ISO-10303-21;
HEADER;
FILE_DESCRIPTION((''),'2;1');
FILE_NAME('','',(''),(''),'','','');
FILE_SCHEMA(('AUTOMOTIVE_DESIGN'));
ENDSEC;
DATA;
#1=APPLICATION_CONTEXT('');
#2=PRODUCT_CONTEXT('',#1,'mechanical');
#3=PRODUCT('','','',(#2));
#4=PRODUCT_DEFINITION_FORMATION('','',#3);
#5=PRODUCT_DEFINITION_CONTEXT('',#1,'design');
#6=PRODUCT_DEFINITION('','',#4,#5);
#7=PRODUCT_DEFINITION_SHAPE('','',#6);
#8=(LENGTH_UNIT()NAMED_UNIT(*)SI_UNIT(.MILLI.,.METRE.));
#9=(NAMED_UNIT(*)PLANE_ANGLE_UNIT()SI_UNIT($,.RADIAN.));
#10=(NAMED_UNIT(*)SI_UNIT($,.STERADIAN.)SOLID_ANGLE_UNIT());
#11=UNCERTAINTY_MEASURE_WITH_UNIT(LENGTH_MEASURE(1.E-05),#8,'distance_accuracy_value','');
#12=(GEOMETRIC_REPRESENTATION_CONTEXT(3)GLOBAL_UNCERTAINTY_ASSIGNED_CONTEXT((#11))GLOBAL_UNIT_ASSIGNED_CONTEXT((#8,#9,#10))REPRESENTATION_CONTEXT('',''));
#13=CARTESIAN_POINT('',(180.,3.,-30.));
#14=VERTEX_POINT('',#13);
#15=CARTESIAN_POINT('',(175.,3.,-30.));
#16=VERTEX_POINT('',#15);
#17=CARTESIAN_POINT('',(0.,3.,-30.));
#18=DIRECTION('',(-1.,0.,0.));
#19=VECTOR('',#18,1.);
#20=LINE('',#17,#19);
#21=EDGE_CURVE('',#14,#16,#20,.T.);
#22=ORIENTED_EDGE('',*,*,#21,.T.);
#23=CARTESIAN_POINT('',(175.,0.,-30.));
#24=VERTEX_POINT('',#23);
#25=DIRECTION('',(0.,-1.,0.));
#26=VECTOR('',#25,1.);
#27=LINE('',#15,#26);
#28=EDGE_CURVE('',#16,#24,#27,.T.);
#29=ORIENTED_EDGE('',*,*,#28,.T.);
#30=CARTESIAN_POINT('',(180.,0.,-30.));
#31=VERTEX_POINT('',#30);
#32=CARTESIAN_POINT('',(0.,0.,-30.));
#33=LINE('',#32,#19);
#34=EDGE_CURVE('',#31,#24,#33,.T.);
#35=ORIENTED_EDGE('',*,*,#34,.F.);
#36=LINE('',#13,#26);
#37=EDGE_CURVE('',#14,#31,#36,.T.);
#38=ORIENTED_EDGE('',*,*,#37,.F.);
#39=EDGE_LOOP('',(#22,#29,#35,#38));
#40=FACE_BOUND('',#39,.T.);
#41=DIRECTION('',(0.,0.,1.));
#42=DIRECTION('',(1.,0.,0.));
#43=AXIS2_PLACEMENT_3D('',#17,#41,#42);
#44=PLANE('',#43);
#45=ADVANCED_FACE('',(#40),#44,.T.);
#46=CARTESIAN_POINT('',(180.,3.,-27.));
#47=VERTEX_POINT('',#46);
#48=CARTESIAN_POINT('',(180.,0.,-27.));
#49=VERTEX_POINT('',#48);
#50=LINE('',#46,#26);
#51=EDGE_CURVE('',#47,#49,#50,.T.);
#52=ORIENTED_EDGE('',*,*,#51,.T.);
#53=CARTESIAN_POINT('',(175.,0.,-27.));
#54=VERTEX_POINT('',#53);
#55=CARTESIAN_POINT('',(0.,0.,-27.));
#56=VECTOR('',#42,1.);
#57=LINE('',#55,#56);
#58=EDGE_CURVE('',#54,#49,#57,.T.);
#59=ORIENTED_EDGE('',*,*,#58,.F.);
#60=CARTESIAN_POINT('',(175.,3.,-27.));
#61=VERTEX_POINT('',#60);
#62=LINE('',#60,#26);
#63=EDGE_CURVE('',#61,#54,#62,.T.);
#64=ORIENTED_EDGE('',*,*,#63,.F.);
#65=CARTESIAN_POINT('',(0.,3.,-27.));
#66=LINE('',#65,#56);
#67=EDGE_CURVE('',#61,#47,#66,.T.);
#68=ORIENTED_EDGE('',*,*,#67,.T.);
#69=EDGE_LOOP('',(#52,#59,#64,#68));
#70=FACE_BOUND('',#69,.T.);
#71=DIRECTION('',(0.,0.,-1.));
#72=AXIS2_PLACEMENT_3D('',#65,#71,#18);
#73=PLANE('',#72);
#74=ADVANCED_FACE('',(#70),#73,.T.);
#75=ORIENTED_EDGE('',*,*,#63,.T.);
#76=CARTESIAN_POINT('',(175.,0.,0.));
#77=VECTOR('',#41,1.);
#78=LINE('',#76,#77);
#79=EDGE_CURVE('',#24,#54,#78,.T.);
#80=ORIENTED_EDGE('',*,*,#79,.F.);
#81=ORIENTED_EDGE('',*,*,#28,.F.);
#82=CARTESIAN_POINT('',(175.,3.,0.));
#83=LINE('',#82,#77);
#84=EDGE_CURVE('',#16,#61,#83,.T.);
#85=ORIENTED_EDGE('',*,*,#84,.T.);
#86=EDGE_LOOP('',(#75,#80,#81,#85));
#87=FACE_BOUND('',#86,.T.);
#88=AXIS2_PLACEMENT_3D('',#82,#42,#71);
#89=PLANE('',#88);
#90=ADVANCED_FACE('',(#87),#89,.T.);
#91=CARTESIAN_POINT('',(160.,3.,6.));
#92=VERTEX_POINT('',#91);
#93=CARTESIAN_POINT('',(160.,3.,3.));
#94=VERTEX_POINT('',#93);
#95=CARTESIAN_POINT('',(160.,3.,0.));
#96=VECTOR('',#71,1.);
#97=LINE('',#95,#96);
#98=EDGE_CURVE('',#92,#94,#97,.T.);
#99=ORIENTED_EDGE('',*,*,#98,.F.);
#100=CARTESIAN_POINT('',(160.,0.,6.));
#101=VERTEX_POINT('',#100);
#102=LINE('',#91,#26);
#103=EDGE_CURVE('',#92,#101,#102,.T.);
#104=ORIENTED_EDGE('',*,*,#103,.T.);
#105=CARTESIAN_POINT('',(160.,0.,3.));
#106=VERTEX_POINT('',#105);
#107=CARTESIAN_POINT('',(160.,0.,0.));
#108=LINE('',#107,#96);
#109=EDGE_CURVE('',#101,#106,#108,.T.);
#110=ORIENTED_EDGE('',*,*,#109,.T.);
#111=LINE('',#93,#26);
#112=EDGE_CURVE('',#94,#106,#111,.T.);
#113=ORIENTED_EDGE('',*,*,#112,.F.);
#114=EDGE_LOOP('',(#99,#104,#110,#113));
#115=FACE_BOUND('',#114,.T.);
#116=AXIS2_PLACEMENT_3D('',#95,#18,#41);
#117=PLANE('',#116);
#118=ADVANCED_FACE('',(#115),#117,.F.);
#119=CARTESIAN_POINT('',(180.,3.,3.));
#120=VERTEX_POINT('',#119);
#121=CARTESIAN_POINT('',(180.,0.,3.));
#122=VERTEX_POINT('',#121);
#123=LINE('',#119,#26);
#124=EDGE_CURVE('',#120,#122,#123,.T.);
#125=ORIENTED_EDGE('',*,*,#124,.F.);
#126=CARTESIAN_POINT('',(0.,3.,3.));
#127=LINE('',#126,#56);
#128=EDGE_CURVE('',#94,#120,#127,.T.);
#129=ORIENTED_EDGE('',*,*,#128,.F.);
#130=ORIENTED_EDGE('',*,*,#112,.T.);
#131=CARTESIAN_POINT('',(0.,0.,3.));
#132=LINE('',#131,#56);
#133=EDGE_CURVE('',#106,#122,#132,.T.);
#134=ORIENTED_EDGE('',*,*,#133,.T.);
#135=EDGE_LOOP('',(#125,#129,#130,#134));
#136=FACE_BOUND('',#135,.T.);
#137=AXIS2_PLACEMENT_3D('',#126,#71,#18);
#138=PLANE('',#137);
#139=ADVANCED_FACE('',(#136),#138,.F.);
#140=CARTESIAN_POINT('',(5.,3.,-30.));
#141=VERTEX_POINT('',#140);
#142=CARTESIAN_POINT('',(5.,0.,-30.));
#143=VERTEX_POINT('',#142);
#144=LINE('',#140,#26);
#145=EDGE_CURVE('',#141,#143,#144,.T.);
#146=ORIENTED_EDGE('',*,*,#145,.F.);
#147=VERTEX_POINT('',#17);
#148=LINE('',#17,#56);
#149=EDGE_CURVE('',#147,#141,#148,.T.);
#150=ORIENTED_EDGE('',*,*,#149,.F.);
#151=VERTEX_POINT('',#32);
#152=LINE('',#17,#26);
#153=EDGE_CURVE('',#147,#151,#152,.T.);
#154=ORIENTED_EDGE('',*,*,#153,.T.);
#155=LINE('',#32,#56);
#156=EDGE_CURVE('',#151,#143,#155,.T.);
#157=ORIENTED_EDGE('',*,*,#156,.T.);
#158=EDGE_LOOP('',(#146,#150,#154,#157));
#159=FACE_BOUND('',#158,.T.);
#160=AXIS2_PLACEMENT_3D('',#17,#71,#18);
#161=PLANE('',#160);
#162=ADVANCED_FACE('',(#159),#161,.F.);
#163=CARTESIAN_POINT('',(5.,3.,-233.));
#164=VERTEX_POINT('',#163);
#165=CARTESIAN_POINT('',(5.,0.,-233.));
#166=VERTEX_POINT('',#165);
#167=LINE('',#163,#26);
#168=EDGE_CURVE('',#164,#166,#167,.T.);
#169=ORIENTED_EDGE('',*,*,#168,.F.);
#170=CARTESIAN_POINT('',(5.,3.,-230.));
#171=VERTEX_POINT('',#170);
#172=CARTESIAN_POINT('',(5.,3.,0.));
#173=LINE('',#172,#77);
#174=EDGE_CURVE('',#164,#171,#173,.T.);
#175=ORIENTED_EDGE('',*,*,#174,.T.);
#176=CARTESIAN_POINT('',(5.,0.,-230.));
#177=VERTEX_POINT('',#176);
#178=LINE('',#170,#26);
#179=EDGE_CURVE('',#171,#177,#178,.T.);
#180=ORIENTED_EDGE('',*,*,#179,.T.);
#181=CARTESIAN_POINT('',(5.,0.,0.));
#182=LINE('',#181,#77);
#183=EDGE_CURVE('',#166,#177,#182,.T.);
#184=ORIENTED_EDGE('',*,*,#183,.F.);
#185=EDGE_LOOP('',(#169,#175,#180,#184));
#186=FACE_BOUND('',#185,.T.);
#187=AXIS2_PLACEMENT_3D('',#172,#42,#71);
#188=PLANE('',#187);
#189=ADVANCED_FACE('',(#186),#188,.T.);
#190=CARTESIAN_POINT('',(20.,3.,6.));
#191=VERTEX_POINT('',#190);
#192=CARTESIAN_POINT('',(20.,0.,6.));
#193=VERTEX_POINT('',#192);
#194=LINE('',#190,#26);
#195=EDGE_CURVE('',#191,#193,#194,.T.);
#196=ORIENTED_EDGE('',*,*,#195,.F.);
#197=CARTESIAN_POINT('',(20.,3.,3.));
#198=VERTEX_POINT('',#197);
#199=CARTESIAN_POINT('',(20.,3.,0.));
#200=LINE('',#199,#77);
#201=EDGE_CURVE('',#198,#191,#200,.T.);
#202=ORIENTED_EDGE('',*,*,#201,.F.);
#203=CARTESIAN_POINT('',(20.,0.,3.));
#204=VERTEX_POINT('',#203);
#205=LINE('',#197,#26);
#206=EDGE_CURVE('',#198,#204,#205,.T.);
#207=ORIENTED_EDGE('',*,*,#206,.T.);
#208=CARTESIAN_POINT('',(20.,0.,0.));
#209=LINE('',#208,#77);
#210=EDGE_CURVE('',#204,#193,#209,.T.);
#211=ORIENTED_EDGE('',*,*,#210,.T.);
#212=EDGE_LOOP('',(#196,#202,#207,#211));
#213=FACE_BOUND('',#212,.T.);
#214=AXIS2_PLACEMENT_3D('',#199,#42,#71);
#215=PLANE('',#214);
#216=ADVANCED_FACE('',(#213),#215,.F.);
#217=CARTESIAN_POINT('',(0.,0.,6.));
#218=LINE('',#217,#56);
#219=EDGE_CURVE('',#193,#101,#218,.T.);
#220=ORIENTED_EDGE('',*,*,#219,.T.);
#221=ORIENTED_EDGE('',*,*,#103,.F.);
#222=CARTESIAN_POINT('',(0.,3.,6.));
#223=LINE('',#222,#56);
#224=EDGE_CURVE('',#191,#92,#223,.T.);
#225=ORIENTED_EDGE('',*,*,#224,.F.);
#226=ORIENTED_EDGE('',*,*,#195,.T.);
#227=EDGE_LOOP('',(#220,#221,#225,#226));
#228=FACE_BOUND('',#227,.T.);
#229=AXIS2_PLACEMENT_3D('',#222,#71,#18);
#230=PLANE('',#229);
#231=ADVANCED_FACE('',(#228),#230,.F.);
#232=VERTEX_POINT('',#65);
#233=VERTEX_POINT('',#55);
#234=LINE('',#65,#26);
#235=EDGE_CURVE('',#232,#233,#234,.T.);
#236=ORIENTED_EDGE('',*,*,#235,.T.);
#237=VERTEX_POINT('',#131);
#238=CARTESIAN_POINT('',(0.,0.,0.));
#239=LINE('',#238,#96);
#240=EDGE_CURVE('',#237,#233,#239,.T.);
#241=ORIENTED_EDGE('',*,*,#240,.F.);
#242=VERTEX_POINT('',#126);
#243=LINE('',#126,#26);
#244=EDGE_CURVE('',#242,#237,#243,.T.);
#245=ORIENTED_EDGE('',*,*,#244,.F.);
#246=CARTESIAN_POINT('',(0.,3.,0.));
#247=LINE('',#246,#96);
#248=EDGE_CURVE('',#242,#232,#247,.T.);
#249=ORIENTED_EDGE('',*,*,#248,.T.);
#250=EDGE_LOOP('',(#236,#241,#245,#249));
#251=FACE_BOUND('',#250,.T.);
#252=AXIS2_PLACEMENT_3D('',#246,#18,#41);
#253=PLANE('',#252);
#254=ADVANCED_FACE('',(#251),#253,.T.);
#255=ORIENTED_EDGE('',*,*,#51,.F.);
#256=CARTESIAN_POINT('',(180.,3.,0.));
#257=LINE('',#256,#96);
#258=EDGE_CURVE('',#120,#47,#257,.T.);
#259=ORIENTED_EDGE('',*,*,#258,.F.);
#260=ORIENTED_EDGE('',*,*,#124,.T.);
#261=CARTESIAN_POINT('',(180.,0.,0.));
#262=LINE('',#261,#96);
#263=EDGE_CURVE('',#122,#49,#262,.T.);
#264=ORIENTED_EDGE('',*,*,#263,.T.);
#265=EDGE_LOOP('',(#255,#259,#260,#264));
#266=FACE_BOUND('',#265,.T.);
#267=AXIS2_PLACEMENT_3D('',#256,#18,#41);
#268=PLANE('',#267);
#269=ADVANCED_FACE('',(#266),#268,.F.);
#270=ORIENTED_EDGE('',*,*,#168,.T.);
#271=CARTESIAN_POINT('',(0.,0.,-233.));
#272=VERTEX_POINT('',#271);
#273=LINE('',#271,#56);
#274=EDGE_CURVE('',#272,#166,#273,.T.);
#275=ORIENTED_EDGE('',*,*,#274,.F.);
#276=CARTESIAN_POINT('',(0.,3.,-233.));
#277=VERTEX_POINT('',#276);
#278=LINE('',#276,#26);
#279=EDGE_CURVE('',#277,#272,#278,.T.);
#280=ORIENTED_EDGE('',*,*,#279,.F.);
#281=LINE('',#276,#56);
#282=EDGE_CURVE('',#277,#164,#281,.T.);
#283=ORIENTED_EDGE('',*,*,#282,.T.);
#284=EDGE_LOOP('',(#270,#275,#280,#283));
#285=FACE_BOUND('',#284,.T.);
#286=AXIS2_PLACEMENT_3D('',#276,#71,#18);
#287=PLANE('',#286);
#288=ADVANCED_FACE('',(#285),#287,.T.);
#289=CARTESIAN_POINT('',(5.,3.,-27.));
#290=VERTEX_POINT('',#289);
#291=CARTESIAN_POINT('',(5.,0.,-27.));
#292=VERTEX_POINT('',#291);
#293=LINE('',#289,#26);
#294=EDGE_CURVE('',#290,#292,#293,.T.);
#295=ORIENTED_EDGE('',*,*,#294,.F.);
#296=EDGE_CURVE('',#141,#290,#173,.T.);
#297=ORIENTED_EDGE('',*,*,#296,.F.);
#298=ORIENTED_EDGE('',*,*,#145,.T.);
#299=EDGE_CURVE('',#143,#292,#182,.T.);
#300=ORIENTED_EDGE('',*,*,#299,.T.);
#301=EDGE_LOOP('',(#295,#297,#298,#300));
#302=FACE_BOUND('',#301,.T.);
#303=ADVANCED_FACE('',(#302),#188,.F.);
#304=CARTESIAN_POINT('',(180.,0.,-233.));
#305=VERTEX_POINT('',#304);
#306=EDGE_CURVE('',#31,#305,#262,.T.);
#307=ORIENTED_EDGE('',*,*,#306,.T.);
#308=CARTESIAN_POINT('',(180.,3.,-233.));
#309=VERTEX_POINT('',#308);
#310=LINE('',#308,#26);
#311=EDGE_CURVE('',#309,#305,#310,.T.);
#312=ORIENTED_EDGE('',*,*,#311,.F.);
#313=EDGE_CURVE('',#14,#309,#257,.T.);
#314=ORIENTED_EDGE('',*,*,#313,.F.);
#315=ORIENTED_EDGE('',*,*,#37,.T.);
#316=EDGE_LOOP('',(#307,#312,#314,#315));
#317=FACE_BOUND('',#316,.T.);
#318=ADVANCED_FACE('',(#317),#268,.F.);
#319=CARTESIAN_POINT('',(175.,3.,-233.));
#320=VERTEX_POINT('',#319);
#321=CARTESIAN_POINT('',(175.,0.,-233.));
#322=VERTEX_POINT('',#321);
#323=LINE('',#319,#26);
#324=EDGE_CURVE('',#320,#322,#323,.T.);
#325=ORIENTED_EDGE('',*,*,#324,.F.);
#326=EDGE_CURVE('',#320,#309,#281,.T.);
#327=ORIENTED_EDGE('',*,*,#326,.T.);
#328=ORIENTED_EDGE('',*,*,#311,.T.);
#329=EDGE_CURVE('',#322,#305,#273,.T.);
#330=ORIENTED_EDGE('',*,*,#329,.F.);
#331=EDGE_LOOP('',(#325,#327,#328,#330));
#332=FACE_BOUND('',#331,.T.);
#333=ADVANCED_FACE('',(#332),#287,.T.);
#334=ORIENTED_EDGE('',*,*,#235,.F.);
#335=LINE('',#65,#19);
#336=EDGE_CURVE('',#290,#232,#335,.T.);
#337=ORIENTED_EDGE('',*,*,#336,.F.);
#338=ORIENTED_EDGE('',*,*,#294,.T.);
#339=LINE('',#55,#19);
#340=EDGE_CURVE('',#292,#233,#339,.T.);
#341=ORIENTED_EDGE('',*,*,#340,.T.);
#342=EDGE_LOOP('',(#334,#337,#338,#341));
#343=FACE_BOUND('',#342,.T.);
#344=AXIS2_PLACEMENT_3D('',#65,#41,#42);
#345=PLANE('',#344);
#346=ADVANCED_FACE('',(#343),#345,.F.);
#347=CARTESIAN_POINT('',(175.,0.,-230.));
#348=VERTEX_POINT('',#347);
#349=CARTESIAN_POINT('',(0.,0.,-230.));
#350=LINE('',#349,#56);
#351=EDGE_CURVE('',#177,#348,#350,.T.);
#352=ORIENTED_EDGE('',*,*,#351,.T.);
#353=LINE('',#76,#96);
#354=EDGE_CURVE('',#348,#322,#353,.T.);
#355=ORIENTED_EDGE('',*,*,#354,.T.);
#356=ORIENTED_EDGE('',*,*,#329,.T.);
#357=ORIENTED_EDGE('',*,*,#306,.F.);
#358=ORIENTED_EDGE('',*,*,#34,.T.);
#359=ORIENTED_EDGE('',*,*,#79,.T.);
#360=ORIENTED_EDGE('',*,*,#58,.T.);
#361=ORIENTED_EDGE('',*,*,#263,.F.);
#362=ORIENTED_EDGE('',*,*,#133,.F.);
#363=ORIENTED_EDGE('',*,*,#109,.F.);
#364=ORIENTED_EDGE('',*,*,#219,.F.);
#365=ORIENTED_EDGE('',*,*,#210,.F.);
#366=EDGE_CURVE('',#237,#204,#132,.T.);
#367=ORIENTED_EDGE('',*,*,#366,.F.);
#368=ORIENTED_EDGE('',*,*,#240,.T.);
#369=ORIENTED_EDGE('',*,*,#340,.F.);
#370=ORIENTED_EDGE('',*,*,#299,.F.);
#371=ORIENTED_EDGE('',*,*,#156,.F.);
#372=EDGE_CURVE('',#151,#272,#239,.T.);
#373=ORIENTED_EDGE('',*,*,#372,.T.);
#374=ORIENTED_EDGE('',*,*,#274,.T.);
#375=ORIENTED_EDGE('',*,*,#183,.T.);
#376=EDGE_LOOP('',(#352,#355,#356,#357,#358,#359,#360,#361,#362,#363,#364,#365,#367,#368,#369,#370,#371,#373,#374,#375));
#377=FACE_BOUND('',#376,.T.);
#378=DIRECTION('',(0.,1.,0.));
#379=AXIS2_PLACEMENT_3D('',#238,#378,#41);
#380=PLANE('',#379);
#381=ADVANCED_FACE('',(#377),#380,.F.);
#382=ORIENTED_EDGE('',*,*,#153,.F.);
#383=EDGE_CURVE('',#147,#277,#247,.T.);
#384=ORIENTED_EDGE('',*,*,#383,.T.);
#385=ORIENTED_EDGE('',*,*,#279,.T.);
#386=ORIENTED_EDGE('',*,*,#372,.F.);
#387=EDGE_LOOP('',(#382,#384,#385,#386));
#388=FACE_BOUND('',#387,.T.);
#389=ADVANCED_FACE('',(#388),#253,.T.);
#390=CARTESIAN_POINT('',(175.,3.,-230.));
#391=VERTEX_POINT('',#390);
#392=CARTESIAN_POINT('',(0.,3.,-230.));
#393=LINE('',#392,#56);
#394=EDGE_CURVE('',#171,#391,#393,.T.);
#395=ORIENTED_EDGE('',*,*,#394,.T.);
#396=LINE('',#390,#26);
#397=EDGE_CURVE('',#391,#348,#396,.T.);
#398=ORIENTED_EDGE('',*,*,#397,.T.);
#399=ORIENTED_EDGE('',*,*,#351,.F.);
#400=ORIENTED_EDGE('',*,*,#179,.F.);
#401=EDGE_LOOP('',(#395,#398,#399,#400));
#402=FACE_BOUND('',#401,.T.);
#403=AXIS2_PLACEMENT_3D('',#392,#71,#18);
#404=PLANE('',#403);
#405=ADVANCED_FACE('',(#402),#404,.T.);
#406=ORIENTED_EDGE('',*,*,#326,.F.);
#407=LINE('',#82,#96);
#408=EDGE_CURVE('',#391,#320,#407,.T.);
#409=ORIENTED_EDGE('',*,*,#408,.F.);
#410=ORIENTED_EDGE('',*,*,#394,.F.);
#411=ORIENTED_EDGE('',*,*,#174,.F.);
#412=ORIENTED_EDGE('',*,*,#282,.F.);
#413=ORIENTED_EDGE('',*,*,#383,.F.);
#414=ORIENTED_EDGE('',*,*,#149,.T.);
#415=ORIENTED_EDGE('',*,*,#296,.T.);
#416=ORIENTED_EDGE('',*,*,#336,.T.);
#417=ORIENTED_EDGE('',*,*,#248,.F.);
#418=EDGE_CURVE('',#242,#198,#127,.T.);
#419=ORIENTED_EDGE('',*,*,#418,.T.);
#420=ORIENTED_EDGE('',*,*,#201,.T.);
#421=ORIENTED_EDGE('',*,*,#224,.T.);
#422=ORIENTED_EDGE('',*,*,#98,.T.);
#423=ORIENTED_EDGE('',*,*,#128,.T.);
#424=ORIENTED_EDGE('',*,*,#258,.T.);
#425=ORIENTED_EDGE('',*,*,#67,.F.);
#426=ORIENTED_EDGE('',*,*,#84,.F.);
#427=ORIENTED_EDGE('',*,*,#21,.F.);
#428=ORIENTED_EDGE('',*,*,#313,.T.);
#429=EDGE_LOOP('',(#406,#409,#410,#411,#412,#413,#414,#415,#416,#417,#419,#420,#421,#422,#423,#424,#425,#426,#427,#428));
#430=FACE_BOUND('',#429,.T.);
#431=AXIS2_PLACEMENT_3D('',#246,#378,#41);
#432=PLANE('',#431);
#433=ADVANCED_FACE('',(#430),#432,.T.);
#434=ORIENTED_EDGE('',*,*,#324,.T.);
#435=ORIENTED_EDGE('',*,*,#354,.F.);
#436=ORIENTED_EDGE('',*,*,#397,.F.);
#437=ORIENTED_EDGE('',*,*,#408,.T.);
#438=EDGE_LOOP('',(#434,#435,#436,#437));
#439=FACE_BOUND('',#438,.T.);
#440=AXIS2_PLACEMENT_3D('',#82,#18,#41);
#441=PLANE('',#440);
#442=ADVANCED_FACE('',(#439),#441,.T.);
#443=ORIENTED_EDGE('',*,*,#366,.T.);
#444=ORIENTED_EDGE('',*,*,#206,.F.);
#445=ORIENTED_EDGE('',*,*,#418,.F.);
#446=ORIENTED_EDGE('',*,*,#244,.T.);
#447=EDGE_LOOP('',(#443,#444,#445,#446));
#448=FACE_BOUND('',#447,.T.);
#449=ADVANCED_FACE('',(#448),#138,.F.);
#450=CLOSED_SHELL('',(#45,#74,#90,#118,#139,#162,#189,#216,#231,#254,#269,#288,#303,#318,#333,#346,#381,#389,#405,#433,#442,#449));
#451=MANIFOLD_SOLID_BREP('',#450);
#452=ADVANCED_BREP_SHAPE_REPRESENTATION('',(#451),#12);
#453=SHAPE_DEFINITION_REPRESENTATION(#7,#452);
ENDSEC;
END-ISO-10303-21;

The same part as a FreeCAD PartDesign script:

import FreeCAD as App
import Part
import Sketcher

V = App.Vector
Q = App.Units.Quantity

doc = App.newDocument("Part")
body = doc.addObject("PartDesign::Body", "Body")

# Sketch on XZ plane
sketch1 = body.newObject("Sketcher::SketchObject", "Sketch")
sketch1.AttachmentSupport = (doc.getObject("XZ_Plane"), [""])
sketch1.MapMode = "FlatFace"
sketch1.addGeometry([
    Part.LineSegment(V(160, 3, 0), V(180, 3, 0)),  # 0
    Part.LineSegment(V(180, 3, 0), V(180, -27, 0)),  # 1
    Part.LineSegment(V(180, -27, 0), V(175, -27, 0)),  # 2
    Part.LineSegment(V(175, -27, 0), V(175, -30, 0)),  # 3
    Part.LineSegment(V(175, -30, 0), V(180, -30, 0)),  # 4
    Part.LineSegment(V(180, -30, 0), V(180, -233, 0)),  # 5
    Part.LineSegment(V(180, -233, 0), V(175, -233, 0)),  # 6
    Part.LineSegment(V(175, -233, 0), V(175, -230, 0)),  # 7
    Part.LineSegment(V(175, -230, 0), V(5, -230, 0)),  # 8
    Part.LineSegment(V(5, -230, 0), V(5, -233, 0)),  # 9
    Part.LineSegment(V(5, -233, 0), V(0, -233, 0)),  # 10
    Part.LineSegment(V(0, -233, 0), V(0, -30, 0)),  # 11
    Part.LineSegment(V(0, -30, 0), V(5, -30, 0)),  # 12
    Part.LineSegment(V(5, -30, 0), V(5, -27, 0)),  # 13
    Part.LineSegment(V(5, -27, 0), V(0, -27, 0)),  # 14
    Part.LineSegment(V(0, -27, 0), V(0, 3, 0)),  # 15
    Part.LineSegment(V(0, 3, 0), V(20, 3, 0)),  # 16
    Part.LineSegment(V(20, 3, 0), V(20, 6, 0)),  # 17
    Part.LineSegment(V(20, 6, 0), V(160, 6, 0)),  # 18
    Part.LineSegment(V(160, 6, 0), V(160, 3, 0)),  # 19
], False)
sketch1.addConstraint([
    Sketcher.Constraint("Coincident", 0, 2, 1, 1),
    Sketcher.Constraint("Coincident", 1, 2, 2, 1),
    Sketcher.Constraint("Coincident", 2, 2, 3, 1),
    Sketcher.Constraint("Coincident", 3, 2, 4, 1),
    Sketcher.Constraint("Coincident", 4, 2, 5, 1),
    Sketcher.Constraint("Coincident", 5, 2, 6, 1),
    Sketcher.Constraint("Coincident", 6, 2, 7, 1),
    Sketcher.Constraint("Coincident", 7, 2, 8, 1),
    Sketcher.Constraint("Coincident", 8, 2, 9, 1),
    Sketcher.Constraint("Coincident", 9, 2, 10, 1),
    Sketcher.Constraint("Coincident", 10, 2, 11, 1),
    Sketcher.Constraint("Coincident", 11, 2, 12, 1),
    Sketcher.Constraint("Coincident", 12, 2, 13, 1),
    Sketcher.Constraint("Coincident", 13, 2, 14, 1),
    Sketcher.Constraint("Coincident", 14, 2, 15, 1),
    Sketcher.Constraint("Coincident", 15, 2, 16, 1),
    Sketcher.Constraint("Coincident", 16, 2, 17, 1),
    Sketcher.Constraint("Coincident", 17, 2, 18, 1),
    Sketcher.Constraint("Coincident", 18, 2, 19, 1),
    Sketcher.Constraint("Coincident", 19, 2, 0, 1),
    Sketcher.Constraint("Horizontal", 0),
    Sketcher.Constraint("Vertical", 1),
    Sketcher.Constraint("Horizontal", 2),
    Sketcher.Constraint("Vertical", 3),
    Sketcher.Constraint("Horizontal", 4),
    Sketcher.Constraint("Vertical", 5),
    Sketcher.Constraint("Horizontal", 6),
    Sketcher.Constraint("Vertical", 7),
    Sketcher.Constraint("Horizontal", 8),
    Sketcher.Constraint("Vertical", 9),
    Sketcher.Constraint("Horizontal", 10),
    Sketcher.Constraint("Vertical", 11),
    Sketcher.Constraint("Horizontal", 12),
    Sketcher.Constraint("Vertical", 13),
    Sketcher.Constraint("Horizontal", 14),
    Sketcher.Constraint("Vertical", 15),
    Sketcher.Constraint("Horizontal", 16),
    Sketcher.Constraint("Vertical", 17),
    Sketcher.Constraint("Horizontal", 18),
    Sketcher.Constraint("Vertical", 19),
    Sketcher.Constraint("PointOnObject", 10, 2, -2),
    Sketcher.Constraint("PointOnObject", 14, 2, -2),
    Sketcher.Constraint("Horizontal", 6, 2, 9, 2),
    Sketcher.Constraint("Horizontal", 4, 2, 11, 2),
    Sketcher.Constraint("Horizontal", 2, 2, 13, 2),
    Sketcher.Constraint("Horizontal", 0, 2, 15, 2),
    Sketcher.Constraint("Vertical", 1, 2, 4, 2),
    Sketcher.Constraint("Vertical", 3, 2, 6, 2),
    Sketcher.Constraint("Vertical", 9, 2, 12, 2),
    Sketcher.Constraint("Equal", 6, 10),
    Sketcher.Constraint("Equal", 0, 16),
    Sketcher.Constraint("Equal", 3, 7),
    Sketcher.Constraint("Equal", 13, 17),
    Sketcher.Constraint("DistanceX", 0, 1, 0, 2, Q("20 mm")),
    Sketcher.Constraint("DistanceX", 2, 2, 2, 1, Q("5 mm")),
    Sketcher.Constraint("DistanceX", 8, 2, 8, 1, Q("170 mm")),
    Sketcher.Constraint("DistanceY", 1, 2, 1, 1, Q("30 mm")),
    Sketcher.Constraint("DistanceY", 3, 2, 3, 1, Q("3 mm")),
    Sketcher.Constraint("DistanceY", 5, 2, 5, 1, Q("203 mm")),
    Sketcher.Constraint("DistanceY", -1, 1, 0, 2, Q("3 mm")),
])
pad1 = body.newObject("PartDesign::Pad", "Pad")
pad1.Profile = sketch1
pad1.Length = 3
pad1.Reversed = True

doc.recompute()
